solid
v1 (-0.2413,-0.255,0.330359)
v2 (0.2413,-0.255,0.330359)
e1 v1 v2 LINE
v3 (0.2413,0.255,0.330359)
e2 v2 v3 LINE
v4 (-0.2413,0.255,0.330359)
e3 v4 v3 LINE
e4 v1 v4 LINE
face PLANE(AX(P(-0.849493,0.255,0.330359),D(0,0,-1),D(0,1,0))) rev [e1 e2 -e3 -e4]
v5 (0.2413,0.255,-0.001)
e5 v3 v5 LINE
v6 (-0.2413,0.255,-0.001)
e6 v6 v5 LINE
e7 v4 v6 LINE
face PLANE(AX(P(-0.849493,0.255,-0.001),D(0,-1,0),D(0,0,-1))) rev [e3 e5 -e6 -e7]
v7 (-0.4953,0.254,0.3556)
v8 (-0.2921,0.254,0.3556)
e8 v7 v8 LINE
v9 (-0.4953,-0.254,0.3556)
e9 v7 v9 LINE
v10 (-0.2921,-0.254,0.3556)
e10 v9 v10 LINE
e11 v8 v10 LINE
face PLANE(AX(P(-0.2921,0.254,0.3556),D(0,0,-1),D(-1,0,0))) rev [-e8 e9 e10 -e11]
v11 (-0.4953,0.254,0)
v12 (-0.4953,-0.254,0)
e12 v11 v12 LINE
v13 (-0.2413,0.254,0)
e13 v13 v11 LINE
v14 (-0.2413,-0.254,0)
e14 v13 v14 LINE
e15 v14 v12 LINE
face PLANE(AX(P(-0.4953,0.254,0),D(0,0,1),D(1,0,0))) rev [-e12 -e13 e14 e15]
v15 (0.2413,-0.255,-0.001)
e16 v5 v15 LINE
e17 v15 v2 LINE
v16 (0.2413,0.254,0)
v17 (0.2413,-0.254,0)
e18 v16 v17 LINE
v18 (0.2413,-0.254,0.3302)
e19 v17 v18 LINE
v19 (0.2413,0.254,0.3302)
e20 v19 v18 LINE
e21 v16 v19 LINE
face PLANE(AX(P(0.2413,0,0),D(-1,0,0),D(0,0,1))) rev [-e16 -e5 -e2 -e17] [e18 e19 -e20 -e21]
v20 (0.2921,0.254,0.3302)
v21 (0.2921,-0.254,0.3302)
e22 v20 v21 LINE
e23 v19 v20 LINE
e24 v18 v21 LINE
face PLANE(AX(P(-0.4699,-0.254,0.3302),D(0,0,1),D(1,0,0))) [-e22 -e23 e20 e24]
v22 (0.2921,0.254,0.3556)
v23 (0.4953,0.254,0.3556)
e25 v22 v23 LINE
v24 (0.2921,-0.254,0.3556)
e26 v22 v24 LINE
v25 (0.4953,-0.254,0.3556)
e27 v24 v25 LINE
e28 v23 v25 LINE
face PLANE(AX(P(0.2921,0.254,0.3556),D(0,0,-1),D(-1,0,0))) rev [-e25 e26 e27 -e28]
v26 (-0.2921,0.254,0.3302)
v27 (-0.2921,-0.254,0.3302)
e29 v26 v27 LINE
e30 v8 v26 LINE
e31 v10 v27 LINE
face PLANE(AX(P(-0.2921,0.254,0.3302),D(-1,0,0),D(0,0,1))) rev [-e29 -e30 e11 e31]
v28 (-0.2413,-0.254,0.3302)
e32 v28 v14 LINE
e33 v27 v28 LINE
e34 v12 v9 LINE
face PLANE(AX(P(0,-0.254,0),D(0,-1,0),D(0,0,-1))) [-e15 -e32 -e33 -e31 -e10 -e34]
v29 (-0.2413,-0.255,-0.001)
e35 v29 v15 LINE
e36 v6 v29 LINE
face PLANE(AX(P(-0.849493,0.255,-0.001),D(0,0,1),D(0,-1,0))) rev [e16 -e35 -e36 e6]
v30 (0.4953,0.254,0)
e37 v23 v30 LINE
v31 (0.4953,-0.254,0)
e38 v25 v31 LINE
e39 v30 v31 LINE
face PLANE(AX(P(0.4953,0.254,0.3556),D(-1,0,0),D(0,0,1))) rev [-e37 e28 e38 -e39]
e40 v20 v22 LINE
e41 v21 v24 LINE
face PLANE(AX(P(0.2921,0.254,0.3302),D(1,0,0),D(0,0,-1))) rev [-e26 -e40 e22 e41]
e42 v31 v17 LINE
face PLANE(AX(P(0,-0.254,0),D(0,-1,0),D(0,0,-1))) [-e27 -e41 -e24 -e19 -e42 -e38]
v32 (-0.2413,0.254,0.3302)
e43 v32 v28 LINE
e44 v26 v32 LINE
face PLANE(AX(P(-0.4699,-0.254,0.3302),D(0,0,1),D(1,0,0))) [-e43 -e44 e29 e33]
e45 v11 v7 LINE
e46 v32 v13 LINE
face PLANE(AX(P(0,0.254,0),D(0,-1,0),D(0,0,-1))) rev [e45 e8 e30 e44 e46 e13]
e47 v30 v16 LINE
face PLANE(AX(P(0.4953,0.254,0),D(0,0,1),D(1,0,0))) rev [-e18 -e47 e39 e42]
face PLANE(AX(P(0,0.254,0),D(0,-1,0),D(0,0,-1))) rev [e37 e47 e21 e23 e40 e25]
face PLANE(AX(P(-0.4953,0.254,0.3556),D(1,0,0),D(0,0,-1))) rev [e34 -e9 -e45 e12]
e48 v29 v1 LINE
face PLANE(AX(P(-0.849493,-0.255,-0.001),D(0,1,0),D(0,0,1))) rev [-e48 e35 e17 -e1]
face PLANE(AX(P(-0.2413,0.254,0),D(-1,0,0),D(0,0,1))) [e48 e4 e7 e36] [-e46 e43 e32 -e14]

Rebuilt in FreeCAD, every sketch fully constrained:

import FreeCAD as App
import Part
import Sketcher

V = App.Vector
Q = App.Units.Quantity

doc = App.newDocument("Part")
params = doc.addObject("Spreadsheet::Sheet", "Params")
for row, (alias, value) in enumerate([
    ("sketch1_width", "0.01 in"),
    ("sketch1_width2", "0.008 in"),
    ("sketch1_width3", "0.007 in"),
    ("sketch1_height", "0.001 in"),
    ("sketch1_height2", "0.014 in"),
    ("pad1_length", "0.02 in"),
    ("sketch2_width", "0.01 in"),
    ("sketch2_width2", "0.009 in"),
    ("sketch2_width3", "0.007 in"),
    ("sketch2_height", "0.001 in"),
    ("sketch2_height2", "0.012 in"),
    ("pad2_length", "0.02 in"),
    ("sketch3_width", "0.037 in"),
    ("sketch3_height", "0.012 in"),
    ("pad3_length", "0.02 in"),
    ("pad4_length", "0.019 in"),
], start=1):
    params.set(f"A{row}", alias)
    params.set(f"B{row}", "=" + value)
    params.setAlias(f"B{row}", alias)

body = doc.addObject("PartDesign::Body", "Body")

# Sketch on XZ plane
sketch1 = doc.addObject("Sketcher::SketchObject", "Sketch")
body.addObject(sketch1)
sketch1.AttachmentSupport = (doc.XZ_Plane, [""])
sketch1.MapMode = "FlatFace"
sketch1.addGeometry([
    Part.LineSegment(V(-0.2413, 0.0254, 0), V(-0.2413, 0, 0)),  # 0
    Part.LineSegment(V(-0.2413, 0, 0), V(-0.4953, 0, 0)),  # 1
    Part.LineSegment(V(-0.4953, 0, 0), V(-0.4953, 0.3556, 0)),  # 2
    Part.LineSegment(V(-0.4953, 0.3556, 0), V(-0.2921, 0.3556, 0)),  # 3
    Part.LineSegment(V(-0.2921, 0.3556, 0), V(-0.2921, 0.3302, 0)),  # 4
    Part.LineSegment(V(-0.2921, 0.3302, 0), V(-0.4699, 0.3302, 0)),  # 5
    Part.LineSegment(V(-0.4699, 0.3302, 0), V(-0.4699, 0.0254, 0)),  # 6
    Part.LineSegment(V(-0.4699, 0.0254, 0), V(-0.2413, 0.0254, 0)),  # 7
], False)
sketch1.addConstraint([
    Sketcher.Constraint("Coincident", 0, 2, 1, 1),
    Sketcher.Constraint("Coincident", 1, 2, 2, 1),
    Sketcher.Constraint("Coincident", 2, 2, 3, 1),
    Sketcher.Constraint("Coincident", 3, 2, 4, 1),
    Sketcher.Constraint("Coincident", 4, 2, 5, 1),
    Sketcher.Constraint("Coincident", 5, 2, 6, 1),
    Sketcher.Constraint("Coincident", 6, 2, 7, 1),
    Sketcher.Constraint("Coincident", 7, 2, 0, 1),
    Sketcher.Constraint("Vertical", 0),
    Sketcher.Constraint("Horizontal", 1),
    Sketcher.Constraint("Vertical", 2),
    Sketcher.Constraint("Horizontal", 3),
    Sketcher.Constraint("Vertical", 4),
    Sketcher.Constraint("Horizontal", 5),
    Sketcher.Constraint("Vertical", 6),
    Sketcher.Constraint("Horizontal", 7),
    Sketcher.Constraint("PointOnObject", 0, 2, -1),
    Sketcher.Constraint("Equal", 0, 4),
    Sketcher.Constraint("DistanceX", 1, 2, 1, 1, Q("0.01 in")),
    Sketcher.Constraint("DistanceX", 3, 1, 3, 2, Q("0.008 in")),
    Sketcher.Constraint("DistanceX", 5, 2, 5, 1, Q("0.007 in")),
    Sketcher.Constraint("DistanceY", 0, 2, 0, 1, Q("0.001 in")),
    Sketcher.Constraint("DistanceY", 2, 1, 2, 2, Q("0.014 in")),
    Sketcher.Constraint("DistanceX", 0, 2, -1, 1, Q("0.0095 in")),
])
sketch1.setExpression("Constraints[18]", "Params.sketch1_width")
sketch1.setExpression("Constraints[19]", "Params.sketch1_width2")
sketch1.setExpression("Constraints[20]", "Params.sketch1_width3")
sketch1.setExpression("Constraints[21]", "Params.sketch1_height")
sketch1.setExpression("Constraints[22]", "Params.sketch1_height2")
pad1 = doc.addObject("PartDesign::Pad", "Pad")
body.addObject(pad1)
pad1.Profile = sketch1
pad1.setExpression("Length", "Params.pad1_length")
pad1.Midplane = True
body2 = doc.addObject("PartDesign::Body", "Body001")

# Sketch on XZ plane
sketch2 = doc.addObject("Sketcher::SketchObject", "Sketch001")
body2.addObject(sketch2)
sketch2.AttachmentSupport = (doc.getObject("XZ_Plane001"), [""])
sketch2.MapMode = "FlatFace"
sketch2.addGeometry([
    Part.LineSegment(V(0.4953, 0, 0), V(0.2413, 0, 0)),  # 0
    Part.LineSegment(V(0.2413, 0, 0), V(0.2413, 0.0254, 0)),  # 1
    Part.LineSegment(V(0.2413, 0.0254, 0), V(0.4699, 0.0254, 0)),  # 2
    Part.LineSegment(V(0.4699, 0.0254, 0), V(0.4699, 0.3302, 0)),  # 3
    Part.LineSegment(V(0.4699, 0.3302, 0), V(0.2921, 0.3302, 0)),  # 4
    Part.LineSegment(V(0.2921, 0.3302, 0), V(0.2921, 0.3556, 0)),  # 5
    Part.LineSegment(V(0.2921, 0.3556, 0), V(0.4953, 0.3556, 0)),  # 6
    Part.LineSegment(V(0.4953, 0.3556, 0), V(0.4953, 0, 0)),  # 7
], False)
sketch2.addConstraint([
    Sketcher.Constraint("Coincident", 0, 2, 1, 1),
    Sketcher.Constraint("Coincident", 1, 2, 2, 1),
    Sketcher.Constraint("Coincident", 2, 2, 3, 1),
    Sketcher.Constraint("Coincident", 3, 2, 4, 1),
    Sketcher.Constraint("Coincident", 4, 2, 5, 1),
    Sketcher.Constraint("Coincident", 5, 2, 6, 1),
    Sketcher.Constraint("Coincident", 6, 2, 7, 1),
    Sketcher.Constraint("Coincident", 7, 2, 0, 1),
    Sketcher.Constraint("Horizontal", 0),
    Sketcher.Constraint("Vertical", 1),
    Sketcher.Constraint("Horizontal", 2),
    Sketcher.Constraint("Vertical", 3),
    Sketcher.Constraint("Horizontal", 4),
    Sketcher.Constraint("Vertical", 5),
    Sketcher.Constraint("Horizontal", 6),
    Sketcher.Constraint("Vertical", 7),
    Sketcher.Constraint("PointOnObject", 0, 2, -1),
    Sketcher.Constraint("Equal", 1, 5),
    Sketcher.Constraint("DistanceX", 0, 2, 0, 1, Q("0.01 in")),
    Sketcher.Constraint("DistanceX", 2, 1, 2, 2, Q("0.009 in")),
    Sketcher.Constraint("DistanceX", 4, 2, 4, 1, Q("0.007 in")),
    Sketcher.Constraint("DistanceY", 1, 1, 1, 2, Q("0.001 in")),
    Sketcher.Constraint("DistanceY", 3, 1, 3, 2, Q("0.012 in")),
    Sketcher.Constraint("DistanceX", -1, 1, 0, 2, Q("0.0095 in")),
])
sketch2.setExpression("Constraints[18]", "Params.sketch2_width")
sketch2.setExpression("Constraints[19]", "Params.sketch2_width2")
sketch2.setExpression("Constraints[20]", "Params.sketch2_width3")
sketch2.setExpression("Constraints[21]", "Params.sketch2_height")
sketch2.setExpression("Constraints[22]", "Params.sketch2_height2")
pad2 = doc.addObject("PartDesign::Pad", "Pad001")
body2.addObject(pad2)
pad2.Profile = sketch2
pad2.setExpression("Length", "Params.pad2_length")
pad2.Midplane = True
body.AllowCompound = True
doc.recompute()

boolean = doc.addObject("PartDesign::Boolean", "Boolean")
body.addObject(boolean)
boolean.Type = "Fuse"
boolean.addObjects([body2])

# Sketch on XZ plane
sketch3 = doc.addObject("Sketcher::SketchObject", "Sketch002")
body.addObject(sketch3)
sketch3.AttachmentSupport = (doc.XZ_Plane, [""])
sketch3.MapMode = "FlatFace"
sketch3.AttachmentOffset = App.Placement(V(0, 0, -0.01 * 25.4), App.Rotation())
sketch3.addGeometry([
    Part.LineSegment(V(-0.4699, 0.0254, 0), V(-0.4699, 0.3302, 0)),
    Part.LineSegment(V(-0.4699, 0.3302, 0), V(0.4699, 0.3302, 0)),
    Part.LineSegment(V(0.4699, 0.3302, 0), V(0.4699, 0.0254, 0)),
    Part.LineSegment(V(0.4699, 0.0254, 0), V(-0.4699, 0.0254, 0)),
], False)
sketch3.addConstraint([
    Sketcher.Constraint("Coincident", 0, 2, 1, 1),
    Sketcher.Constraint("Coincident", 1, 2, 2, 1),
    Sketcher.Constraint("Coincident", 2, 2, 3, 1),
    Sketcher.Constraint("Coincident", 3, 2, 0, 1),
    Sketcher.Constraint("Vertical", 0),
    Sketcher.Constraint("Horizontal", 1),
    Sketcher.Constraint("Vertical", 2),
    Sketcher.Constraint("Horizontal", 3),
    Sketcher.Constraint("DistanceX", 1, 1, 1, 2, Q("0.037 in")),
    Sketcher.Constraint("DistanceY", 0, 1, 0, 2, Q("0.012 in")),
    Sketcher.Constraint("DistanceY", -1, 1, 0, 2, Q("0.013 in")),
    Sketcher.Constraint("DistanceX", 0, 2, -1, 1, Q("0.0185 in")),
])
sketch3.setExpression("Constraints[8]", "Params.sketch3_width")
sketch3.setExpression("Constraints[9]", "Params.sketch3_height")
pad3 = doc.addObject("PartDesign::Pad", "Pad002")
body.addObject(pad3)
pad3.Profile = sketch3
pad3.setExpression("Length", "Params.pad3_length")

# Sketch on YZ plane
sketch4 = doc.addObject("Sketcher::SketchObject", "Sketch003")
body.addObject(sketch4)
sketch4.AttachmentSupport = (doc.YZ_Plane, [""])
sketch4.MapMode = "FlatFace"
sketch4.AttachmentOffset = App.Placement(V(0, 0, 0.0095 * 25.4), App.Rotation())
sketch4.addGeometry([
    Part.LineSegment(V(0.255, -0.001, 0), V(-0.255, -0.001, 0)),
    Part.LineSegment(V(-0.255, -0.001, 0), V(-0.255, 0.330359, 0)),
    Part.LineSegment(V(-0.255, 0.330359, 0), V(0.255, 0.330359, 0)),
    Part.LineSegment(V(0.255, 0.330359, 0), V(0.255, -0.001, 0)),
], False)
sketch4.addConstraint([
    Sketcher.Constraint("Coincident", 0, 2, 1, 1),
    Sketcher.Constraint("Coincident", 1, 2, 2, 1),
    Sketcher.Constraint("Coincident", 2, 2, 3, 1),
    Sketcher.Constraint("Coincident", 3, 2, 0, 1),
    Sketcher.Constraint("Horizontal", 0),
    Sketcher.Constraint("Vertical", 1),
    Sketcher.Constraint("Horizontal", 2),
    Sketcher.Constraint("Vertical", 3),
    Sketcher.Constraint("DistanceX", 0, 2, 0, 1, Q("0.51 mm")),
    Sketcher.Constraint("DistanceY", 1, 1, 1, 2, Q("0.331359 mm")),
    Sketcher.Constraint("DistanceX", 0, 2, -1, 1, Q("0.255 mm")),
    Sketcher.Constraint("DistanceY", 0, 2, -1, 1, Q("0.001 mm")),
])
pad4 = doc.addObject("PartDesign::Pad", "Pad003")
body.addObject(pad4)
pad4.Profile = sketch4
pad4.setExpression("Length", "Params.pad4_length")
pad4.Reversed = True

doc.recompute()
